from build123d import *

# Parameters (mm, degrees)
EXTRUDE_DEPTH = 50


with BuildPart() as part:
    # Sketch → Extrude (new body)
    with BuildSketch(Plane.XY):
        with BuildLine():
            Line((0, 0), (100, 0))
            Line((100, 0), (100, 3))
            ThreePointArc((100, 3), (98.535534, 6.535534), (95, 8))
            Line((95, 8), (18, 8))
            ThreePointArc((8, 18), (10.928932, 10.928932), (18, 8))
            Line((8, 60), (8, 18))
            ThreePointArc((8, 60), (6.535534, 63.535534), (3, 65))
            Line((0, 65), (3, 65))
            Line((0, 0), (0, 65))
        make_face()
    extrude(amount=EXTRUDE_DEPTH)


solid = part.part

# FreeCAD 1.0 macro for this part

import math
import FreeCAD as App
import Part
import Sketcher
Q = App.Units.Quantity

doc = App.newDocument("Part")
body = doc.addObject("PartDesign::Body", "Body")

# Sketch on XY plane
sketch1 = body.newObject("Sketcher::SketchObject", "Sketch")
sketch1.AttachmentSupport = (doc.getObject("XY_Plane"), [""])
sketch1.MapMode = "FlatFace"
sketch1.addGeometry([
    Part.LineSegment(App.Vector(0, 0, 0), App.Vector(100, 0, 0)),  # 0
    Part.LineSegment(App.Vector(100, 0, 0), App.Vector(100, 3, 0)),  # 1
    Part.ArcOfCircle(Part.Circle(App.Vector(95, 3, 0), App.Vector(0, 0, 1), 5), math.radians(-0.000004), math.radians(90.000004)),  # 2
    Part.LineSegment(App.Vector(95, 8, 0), App.Vector(18, 8, 0)),  # 3
    Part.ArcOfCircle(Part.Circle(App.Vector(17.999999, 17.999999, 0), App.Vector(0, 0, 1), 9.999999), math.radians(179.999996), math.radians(270.000004)),  # 4
    Part.LineSegment(App.Vector(8, 18, 0), App.Vector(8, 60, 0)),  # 5
    Part.ArcOfCircle(Part.Circle(App.Vector(3, 60, 0), App.Vector(0, 0, 1), 5), math.radians(-0.000004), math.radians(90.000004)),  # 6
    Part.LineSegment(App.Vector(3, 65, 0), App.Vector(0, 65, 0)),  # 7
    Part.LineSegment(App.Vector(0, 65, 0), App.Vector(0, 0, 0)),  # 8
], False)
sketch1.addConstraint([
    Sketcher.Constraint("Coincident", 0, 2, 1, 1),
    Sketcher.Constraint("Tangent", 1, 2, 2, 1),
    Sketcher.Constraint("Tangent", 2, 2, 3, 1),
    Sketcher.Constraint("Tangent", 3, 2, 4, 2),
    Sketcher.Constraint("Tangent", 4, 1, 5, 1),
    Sketcher.Constraint("Tangent", 5, 2, 6, 1),
    Sketcher.Constraint("Tangent", 6, 2, 7, 1),
    Sketcher.Constraint("Coincident", 7, 2, 8, 1),
    Sketcher.Constraint("Coincident", 8, 2, 0, 1),
    Sketcher.Constraint("Horizontal", 0),
    Sketcher.Constraint("Vertical", 1),
    Sketcher.Constraint("Horizontal", 3),
    Sketcher.Constraint("Vertical", 5),
    Sketcher.Constraint("Horizontal", 7),
    Sketcher.Constraint("Vertical", 8),
    Sketcher.Constraint("Coincident", 8, 2, -1, 1),
    Sketcher.Constraint("Equal", 2, 6),
    Sketcher.Constraint("Equal", 7, 1),
    Sketcher.Constraint("Radius", 2, Q("5 mm")),
    Sketcher.Constraint("Radius", 4, Q("9.999999 mm")),
    Sketcher.Constraint("DistanceX", 0, 1, 0, 2, Q("100 mm")),
    Sketcher.Constraint("DistanceX", 3, 2, 3, 1, Q("77 mm")),
    Sketcher.Constraint("DistanceY", 5, 1, 5, 2, Q("42 mm")),
])
pad1 = body.newObject("PartDesign::Pad", "Pad")
pad1.Profile = sketch1
pad1.Length = 50

doc.recompute()
